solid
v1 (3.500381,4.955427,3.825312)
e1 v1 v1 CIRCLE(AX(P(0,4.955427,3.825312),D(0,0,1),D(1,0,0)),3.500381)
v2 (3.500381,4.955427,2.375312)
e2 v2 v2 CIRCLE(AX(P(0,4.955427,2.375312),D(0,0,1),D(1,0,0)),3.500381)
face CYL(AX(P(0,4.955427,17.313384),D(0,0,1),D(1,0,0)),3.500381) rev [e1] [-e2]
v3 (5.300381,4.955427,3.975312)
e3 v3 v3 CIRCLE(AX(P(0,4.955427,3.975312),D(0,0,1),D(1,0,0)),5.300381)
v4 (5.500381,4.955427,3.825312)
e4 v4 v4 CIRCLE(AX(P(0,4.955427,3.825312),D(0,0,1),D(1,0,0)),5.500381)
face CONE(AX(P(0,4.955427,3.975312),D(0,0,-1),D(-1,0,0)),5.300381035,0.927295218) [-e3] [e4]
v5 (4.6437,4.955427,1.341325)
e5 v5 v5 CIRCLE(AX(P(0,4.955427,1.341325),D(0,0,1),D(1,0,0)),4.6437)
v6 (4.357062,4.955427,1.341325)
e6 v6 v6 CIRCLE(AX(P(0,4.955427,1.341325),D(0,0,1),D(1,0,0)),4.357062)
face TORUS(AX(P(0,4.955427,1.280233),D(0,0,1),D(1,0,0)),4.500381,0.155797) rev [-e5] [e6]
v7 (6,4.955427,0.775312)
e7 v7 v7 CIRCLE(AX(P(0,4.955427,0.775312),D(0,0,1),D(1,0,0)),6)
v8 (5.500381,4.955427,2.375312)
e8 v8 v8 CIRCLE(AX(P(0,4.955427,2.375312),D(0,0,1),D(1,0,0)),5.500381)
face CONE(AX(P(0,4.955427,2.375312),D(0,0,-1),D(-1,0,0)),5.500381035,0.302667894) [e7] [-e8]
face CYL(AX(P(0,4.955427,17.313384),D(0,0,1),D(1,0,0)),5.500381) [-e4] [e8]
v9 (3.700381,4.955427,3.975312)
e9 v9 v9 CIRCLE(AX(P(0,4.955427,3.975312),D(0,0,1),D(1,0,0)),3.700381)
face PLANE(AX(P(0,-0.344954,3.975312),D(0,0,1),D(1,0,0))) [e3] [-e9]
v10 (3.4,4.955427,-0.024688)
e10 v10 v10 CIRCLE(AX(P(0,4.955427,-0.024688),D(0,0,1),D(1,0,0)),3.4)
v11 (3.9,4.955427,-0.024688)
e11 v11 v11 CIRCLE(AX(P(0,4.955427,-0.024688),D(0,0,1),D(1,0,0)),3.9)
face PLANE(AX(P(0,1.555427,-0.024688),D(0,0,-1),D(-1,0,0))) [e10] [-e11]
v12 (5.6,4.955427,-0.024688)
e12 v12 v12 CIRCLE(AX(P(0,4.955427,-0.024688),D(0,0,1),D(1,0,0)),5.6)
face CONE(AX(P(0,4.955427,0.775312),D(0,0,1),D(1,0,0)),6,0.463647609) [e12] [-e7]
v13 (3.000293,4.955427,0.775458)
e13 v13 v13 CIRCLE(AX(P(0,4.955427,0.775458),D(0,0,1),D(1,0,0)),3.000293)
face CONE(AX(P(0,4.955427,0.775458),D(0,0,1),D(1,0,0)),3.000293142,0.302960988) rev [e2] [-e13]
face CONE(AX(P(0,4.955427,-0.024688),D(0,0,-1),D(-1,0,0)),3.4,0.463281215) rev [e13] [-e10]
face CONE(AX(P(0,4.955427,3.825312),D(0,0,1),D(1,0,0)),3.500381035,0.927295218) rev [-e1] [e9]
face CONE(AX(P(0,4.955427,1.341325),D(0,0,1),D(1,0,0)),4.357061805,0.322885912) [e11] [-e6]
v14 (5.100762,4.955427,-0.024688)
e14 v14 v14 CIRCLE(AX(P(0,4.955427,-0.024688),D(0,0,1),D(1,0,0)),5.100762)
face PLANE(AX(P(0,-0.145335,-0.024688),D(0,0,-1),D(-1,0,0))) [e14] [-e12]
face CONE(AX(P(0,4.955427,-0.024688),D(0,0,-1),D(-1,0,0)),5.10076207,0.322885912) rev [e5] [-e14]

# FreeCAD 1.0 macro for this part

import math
import FreeCAD as App
import Part
import Sketcher
from FreeCAD import Vector
Q = App.Units.Quantity

doc = App.newDocument("Part")
body = doc.addObject("PartDesign::Body", "Body")

# Sketch on YZ plane
sketch1 = body.newObject("Sketcher::SketchObject", "Sketch")
sketch1.AttachmentSupport = (doc.getObject("YZ_Plane"), [""])
sketch1.MapMode = "FlatFace"
sketch1.addGeometry([
    Part.LineSegment(Vector(1.06, -0.02, 0), Vector(1.56, -0.02, 0)),  # 0
    Part.LineSegment(Vector(1.56, -0.02, 0), Vector(1.96, 0.78, 0)),  # 1
    Part.LineSegment(Vector(1.96, 0.78, 0), Vector(1.46, 2.38, 0)),  # 2
    Part.LineSegment(Vector(1.46, 2.38, 0), Vector(1.46, 3.83, 0)),  # 3
    Part.LineSegment(Vector(1.46, 3.83, 0), Vector(1.26, 3.98, 0)),  # 4
    Part.LineSegment(Vector(1.26, 3.98, 0), Vector(-0.34, 3.98, 0)),  # 5
    Part.LineSegment(Vector(-0.34, 3.98, 0), Vector(-0.54, 3.83, 0)),  # 6
    Part.LineSegment(Vector(-0.54, 3.83, 0), Vector(-0.54, 2.38, 0)),  # 7
    Part.LineSegment(Vector(-0.54, 2.38, 0), Vector(-1.04, 0.78, 0)),  # 8
    Part.LineSegment(Vector(-1.04, 0.78, 0), Vector(-0.64, -0.02, 0)),  # 9
    Part.LineSegment(Vector(-0.64, -0.02, 0), Vector(-0.15, -0.02, 0)),  # 10
    Part.LineSegment(Vector(-0.15, -0.02, 0), Vector(0.31, 1.34, 0)),  # 11
    Part.ArcOfCircle(Part.Circle(Vector(0.46, 1.28, 0), Vector(0, 0, 1), 0.16), math.radians(23), math.radians(157)),  # 12
    Part.LineSegment(Vector(0.6, 1.34, 0), Vector(1.06, -0.02, 0)),  # 13
], False)
sketch1.addGeometry(Part.LineSegment(Vector(4.96, 3.98, 0), Vector(4.96, -0.02, 0)), True)  # axis
sketch1.addConstraint([
    Sketcher.Constraint("Coincident", 0, 2, 1, 1),
    Sketcher.Constraint("Coincident", 1, 2, 2, 1),
    Sketcher.Constraint("Coincident", 2, 2, 3, 1),
    Sketcher.Constraint("Coincident", 3, 2, 4, 1),
    Sketcher.Constraint("Coincident", 4, 2, 5, 1),
    Sketcher.Constraint("Coincident", 5, 2, 6, 1),
    Sketcher.Constraint("Coincident", 6, 2, 7, 1),
    Sketcher.Constraint("Coincident", 7, 2, 8, 1),
    Sketcher.Constraint("Coincident", 8, 2, 9, 1),
    Sketcher.Constraint("Coincident", 9, 2, 10, 1),
    Sketcher.Constraint("Coincident", 10, 2, 11, 1),
    Sketcher.Constraint("Coincident", 11, 2, 12, 2),
    Sketcher.Constraint("Coincident", 12, 1, 13, 1),
    Sketcher.Constraint("Coincident", 13, 2, 0, 1),
    Sketcher.Constraint("Horizontal", 0),
    Sketcher.Constraint("Vertical", 3),
    Sketcher.Constraint("Horizontal", 5),
    Sketcher.Constraint("Vertical", 7),
    Sketcher.Constraint("Horizontal", 10),
    Sketcher.Constraint("Vertical", 14),
    Sketcher.Constraint("Horizontal", 3, 2, 6, 2),
    Sketcher.Constraint("Horizontal", 2, 2, 7, 2),
    Sketcher.Constraint("Horizontal", 0, 2, 9, 2),
    Sketcher.Constraint("Horizontal", 11, 2, 12, 1),
    Sketcher.Constraint("Horizontal", 5, 2, 14, 1),
    Sketcher.Constraint("Horizontal", 13, 2, 14, 2),
    Sketcher.Constraint("Equal", 4, 6),
    Sketcher.Constraint("Equal", 2, 8),
    Sketcher.Constraint("Equal", 1, 9),
    Sketcher.Constraint("Equal", 11, 13),
    Sketcher.Constraint("DistanceY", 14, 2, 14, 1, 4.0),
    Sketcher.Constraint("DistanceX", 0, 1, 0, 2, 0.5),
    Sketcher.Constraint("DistanceX", 5, 2, 5, 1, 1.6),
    Sketcher.Constraint("Angle", 11, Q("71.5 deg")),
    Sketcher.Constraint("DistanceX", 12, 3, 2, 2, 1.0),
    Sketcher.Constraint("DistanceX", 6, 2, 3, 2, 2.0),
    Sketcher.Constraint("DistanceY", 3, 1, 3, 2, 1.45),
    Sketcher.Constraint("DistanceY", 0, 2, 2, 2, 2.4),
    Sketcher.Constraint("DistanceY", 8, 2, 7, 2, 1.6),
    Sketcher.Constraint("DistanceX", 8, 2, 0, 2, 2.6),
    Sketcher.Constraint("DistanceX", 8, 2, 9, 2, 0.4),
    Sketcher.Constraint("DistanceX", 0, 2, 14, 2, 3.4),
    Sketcher.Constraint("Radius", 12, 0.155797),
    Sketcher.Constraint("DistanceX", 8, 2, 11, 2, 1.3563),
    Sketcher.Constraint("Distance", 2, 1.676192),
    Sketcher.Constraint("DistanceY", 0, 2, -1, 1, 0.024688),
    Sketcher.Constraint("DistanceX", -1, 1, 12, 3, 0.455046),
])
revolution = body.newObject("PartDesign::Revolution", "Revolution")
revolution.Profile = sketch1
revolution.ReferenceAxis = (sketch1, ["Axis0"])
revolution.Angle = 360

doc.recompute()
